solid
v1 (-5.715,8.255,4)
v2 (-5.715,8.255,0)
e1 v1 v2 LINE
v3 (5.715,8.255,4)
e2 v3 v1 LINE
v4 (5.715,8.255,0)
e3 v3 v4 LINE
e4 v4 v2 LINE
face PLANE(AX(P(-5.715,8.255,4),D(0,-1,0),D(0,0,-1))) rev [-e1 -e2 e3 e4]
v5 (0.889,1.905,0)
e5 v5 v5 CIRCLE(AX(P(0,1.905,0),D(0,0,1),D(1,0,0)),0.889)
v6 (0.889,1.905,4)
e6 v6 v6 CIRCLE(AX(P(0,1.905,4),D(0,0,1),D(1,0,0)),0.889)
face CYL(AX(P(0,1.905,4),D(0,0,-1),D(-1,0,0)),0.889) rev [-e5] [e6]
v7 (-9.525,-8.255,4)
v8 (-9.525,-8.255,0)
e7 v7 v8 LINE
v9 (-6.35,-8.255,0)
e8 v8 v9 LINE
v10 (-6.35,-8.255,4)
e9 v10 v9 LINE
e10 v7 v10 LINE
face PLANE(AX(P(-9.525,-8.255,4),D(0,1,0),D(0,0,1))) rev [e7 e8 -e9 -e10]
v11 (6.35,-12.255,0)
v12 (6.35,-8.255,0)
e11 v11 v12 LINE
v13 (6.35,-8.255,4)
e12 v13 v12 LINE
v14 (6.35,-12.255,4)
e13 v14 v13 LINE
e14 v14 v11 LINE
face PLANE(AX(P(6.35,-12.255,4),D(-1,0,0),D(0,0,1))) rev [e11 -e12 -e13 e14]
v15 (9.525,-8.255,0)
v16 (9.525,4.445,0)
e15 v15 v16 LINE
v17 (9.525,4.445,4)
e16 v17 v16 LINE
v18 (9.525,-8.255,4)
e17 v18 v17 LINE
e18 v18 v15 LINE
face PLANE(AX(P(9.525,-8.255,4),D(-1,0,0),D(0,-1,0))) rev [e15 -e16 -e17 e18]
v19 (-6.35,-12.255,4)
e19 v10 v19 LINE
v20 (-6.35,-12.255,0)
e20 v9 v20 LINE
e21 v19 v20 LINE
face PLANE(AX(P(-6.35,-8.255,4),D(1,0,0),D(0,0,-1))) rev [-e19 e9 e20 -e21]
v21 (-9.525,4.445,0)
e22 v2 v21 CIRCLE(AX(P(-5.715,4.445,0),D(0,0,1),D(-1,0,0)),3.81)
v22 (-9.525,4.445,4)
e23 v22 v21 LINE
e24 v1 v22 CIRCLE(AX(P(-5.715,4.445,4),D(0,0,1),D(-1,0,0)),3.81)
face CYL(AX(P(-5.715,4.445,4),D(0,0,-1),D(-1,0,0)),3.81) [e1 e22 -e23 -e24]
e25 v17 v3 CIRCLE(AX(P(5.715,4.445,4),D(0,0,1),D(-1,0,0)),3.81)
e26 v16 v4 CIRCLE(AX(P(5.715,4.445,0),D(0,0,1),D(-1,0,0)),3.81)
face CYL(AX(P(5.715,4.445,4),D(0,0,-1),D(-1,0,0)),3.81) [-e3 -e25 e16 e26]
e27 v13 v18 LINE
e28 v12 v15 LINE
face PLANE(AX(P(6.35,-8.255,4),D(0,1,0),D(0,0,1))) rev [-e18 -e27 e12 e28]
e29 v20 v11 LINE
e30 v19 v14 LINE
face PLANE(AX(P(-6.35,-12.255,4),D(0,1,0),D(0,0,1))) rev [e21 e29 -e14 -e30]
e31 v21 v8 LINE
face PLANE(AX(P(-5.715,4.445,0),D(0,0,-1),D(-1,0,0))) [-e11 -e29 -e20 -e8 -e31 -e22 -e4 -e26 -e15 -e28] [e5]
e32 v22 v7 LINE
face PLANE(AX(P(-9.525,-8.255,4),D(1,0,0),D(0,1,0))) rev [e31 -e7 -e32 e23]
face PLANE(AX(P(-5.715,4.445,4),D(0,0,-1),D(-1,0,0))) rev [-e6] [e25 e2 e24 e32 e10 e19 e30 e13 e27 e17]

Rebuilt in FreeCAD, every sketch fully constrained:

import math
import FreeCAD as App
import Part
import Sketcher
Q = App.Units.Quantity

doc = App.newDocument("Part")
params = doc.addObject("Spreadsheet::Sheet", "Params")
for row, (alias, value) in enumerate([
    ("sketch1_diameter", "0.07 in"),
    ("sketch1_radius", "0.15 in"),
    ("sketch1_width", "0.5 in"),
    ("sketch1_width2", "0.45 in"),
    ("pad1_length", "4 mm"),
], start=1):
    params.set(f"A{row}", alias)
    params.set(f"B{row}", "=" + value)
    params.setAlias(f"B{row}", alias)

body = doc.addObject("PartDesign::Body", "Body")

# Sketch on XY plane
sketch1 = doc.addObject("Sketcher::SketchObject", "Sketch")
body.addObject(sketch1)
sketch1.AttachmentSupport = (doc.XY_Plane, [""])
sketch1.MapMode = "FlatFace"
sketch1.addGeometry([
    Part.LineSegment(App.Vector(-9.525, -8.255, 0), App.Vector(-6.35, -8.255, 0)),  # 0
    Part.LineSegment(App.Vector(-6.35, -8.255, 0), App.Vector(-6.35, -12.255, 0)),  # 1
    Part.LineSegment(App.Vector(-6.35, -12.255, 0), App.Vector(6.35, -12.255, 0)),  # 2
    Part.LineSegment(App.Vector(6.35, -12.255, 0), App.Vector(6.35, -8.255, 0)),  # 3
    Part.LineSegment(App.Vector(6.35, -8.255, 0), App.Vector(9.525, -8.255, 0)),  # 4
    Part.LineSegment(App.Vector(9.525, -8.255, 0), App.Vector(9.525, 4.445, 0)),  # 5
    Part.ArcOfCircle(Part.Circle(App.Vector(5.715, 4.445, 0), App.Vector(0, 0, 1), 3.81), math.radians(0), math.radians(90)),  # 6
    Part.LineSegment(App.Vector(5.715, 8.255, 0), App.Vector(-5.715, 8.255, 0)),  # 7
    Part.ArcOfCircle(Part.Circle(App.Vector(-5.715, 4.445, 0), App.Vector(0, 0, 1), 3.81), math.radians(90), math.radians(180)),  # 8
    Part.LineSegment(App.Vector(-9.525, 4.445, 0), App.Vector(-9.525, -8.255, 0)),  # 9
    Part.Circle(App.Vector(0, 1.905, 0), App.Vector(0, 0, 1), 0.889),  # 10
], False)
sketch1.addConstraint([
    Sketcher.Constraint("Coincident", 0, 2, 1, 1),
    Sketcher.Constraint("Coincident", 1, 2, 2, 1),
    Sketcher.Constraint("Coincident", 2, 2, 3, 1),
    Sketcher.Constraint("Coincident", 3, 2, 4, 1),
    Sketcher.Constraint("Coincident", 4, 2, 5, 1),
    Sketcher.Constraint("Tangent", 5, 2, 6, 1),
    Sketcher.Constraint("Tangent", 6, 2, 7, 1),
    Sketcher.Constraint("Tangent", 7, 2, 8, 1),
    Sketcher.Constraint("Tangent", 8, 2, 9, 1),
    Sketcher.Constraint("Coincident", 9, 2, 0, 1),
    Sketcher.Constraint("Horizontal", 0),
    Sketcher.Constraint("Vertical", 1),
    Sketcher.Constraint("Horizontal", 2),
    Sketcher.Constraint("Vertical", 3),
    Sketcher.Constraint("Horizontal", 4),
    Sketcher.Constraint("Vertical", 5),
    Sketcher.Constraint("Horizontal", 7),
    Sketcher.Constraint("Vertical", 9),
    Sketcher.Constraint("Equal", 6, 8),
    Sketcher.Constraint("Symmetric", 0, 2, 3, 2, -2),
    Sketcher.Constraint("PointOnObject", 10, 3, -2),
    Sketcher.Constraint("Equal", 0, 4),
    Sketcher.Constraint("Equal", 2, 5),
    Sketcher.Constraint("Diameter", 10, Q("0.07 in")),
    Sketcher.Constraint("Radius", 6, Q("0.15 in")),
    Sketcher.Constraint("DistanceX", 2, 1, 2, 2, Q("0.5 in")),
    Sketcher.Constraint("DistanceX", 7, 2, 7, 1, Q("0.45 in")),
    Sketcher.Constraint("DistanceY", 10, 3, 6, 3, Q("0.1 in")),
    Sketcher.Constraint("DistanceY", -1, 1, 6, 3, Q("0.175 in")),
    Sketcher.Constraint("DistanceY", 1, 2, 1, 1, 4.0),
])
sketch1.setExpression("Constraints[23]", "Params.sketch1_diameter")
sketch1.setExpression("Constraints[24]", "Params.sketch1_radius")
sketch1.setExpression("Constraints[25]", "Params.sketch1_width")
sketch1.setExpression("Constraints[26]", "Params.sketch1_width2")
pad1 = doc.addObject("PartDesign::Pad", "Pad")
body.addObject(pad1)
pad1.Profile = sketch1
pad1.setExpression("Length", "Params.pad1_length")

doc.recompute()
